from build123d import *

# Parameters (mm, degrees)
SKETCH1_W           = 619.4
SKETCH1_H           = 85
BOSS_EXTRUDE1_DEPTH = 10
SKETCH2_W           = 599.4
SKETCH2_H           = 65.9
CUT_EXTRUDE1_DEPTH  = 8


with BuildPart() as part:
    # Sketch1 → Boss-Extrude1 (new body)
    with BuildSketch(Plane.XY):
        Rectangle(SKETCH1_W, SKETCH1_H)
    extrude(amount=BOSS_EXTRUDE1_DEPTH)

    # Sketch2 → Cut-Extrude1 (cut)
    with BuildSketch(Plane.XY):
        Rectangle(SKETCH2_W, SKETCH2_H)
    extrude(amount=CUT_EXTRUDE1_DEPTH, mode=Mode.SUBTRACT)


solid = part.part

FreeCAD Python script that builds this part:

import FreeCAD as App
import Part
import Sketcher

V = App.Vector
Q = App.Units.Quantity

doc = App.newDocument("Part")
params = doc.addObject("Spreadsheet::Sheet", "Params")
for row, (alias, value) in enumerate([
    ("sketch1_height", "85 mm"),
    ("sketch1_width", "619.4 mm"),
    ("pad1_length", "10 mm"),
    ("sketch2_width", "599.4 mm"),
    ("sketch2_height", "65.9 mm"),
    ("pocket1_length", "8 mm"),
], start=1):
    params.set(f"A{row}", alias)
    params.set(f"B{row}", "=" + value)
    params.setAlias(f"B{row}", alias)

body = doc.addObject("PartDesign::Body", "Body")

# Sketch on XY plane
sketch1 = body.newObject("Sketcher::SketchObject", "Sketch")
sketch1.AttachmentSupport = (doc.getObject("XY_Plane"), [""])
sketch1.MapMode = "FlatFace"
sketch1.addGeometry(Part.LineSegment(V(-310, 42, 0), V(-310, -42, 0)), False)
sketch1.addGeometry(Part.LineSegment(V(-310, -42, 0), V(310, -42, 0)), False)
sketch1.addGeometry(Part.LineSegment(V(310, -42, 0), V(310, 42, 0)), False)
sketch1.addGeometry(Part.LineSegment(V(310, 42, 0), V(-310, 42, 0)), False)
sketch1.addConstraint(Sketcher.Constraint("Coincident", 0, 2, 1, 1))
sketch1.addConstraint(Sketcher.Constraint("Coincident", 1, 2, 2, 1))
sketch1.addConstraint(Sketcher.Constraint("Coincident", 2, 2, 3, 1))
sketch1.addConstraint(Sketcher.Constraint("Coincident", 3, 2, 0, 1))
sketch1.addConstraint(Sketcher.Constraint("Vertical", 0))
sketch1.addConstraint(Sketcher.Constraint("Horizontal", 1))
sketch1.addConstraint(Sketcher.Constraint("Vertical", 2))
sketch1.addConstraint(Sketcher.Constraint("Horizontal", 3))
sketch1.addConstraint(Sketcher.Constraint("Symmetric", 0, 2, 2, 2, -1, 1))
sketch1.addConstraint(Sketcher.Constraint("DistanceY", 0, 2, 0, 1, Q("85 mm")))
sketch1.addConstraint(Sketcher.Constraint("DistanceX", 1, 1, 1, 2, Q("619.4 mm")))
sketch1.setExpression("Constraints[9]", "Params.sketch1_height")
sketch1.setExpression("Constraints[10]", "Params.sketch1_width")
pad1 = body.newObject("PartDesign::Pad", "Pad")
pad1.Profile = sketch1
pad1.setExpression("Length", "Params.pad1_length")

# Sketch on XY plane
sketch2 = body.newObject("Sketcher::SketchObject", "Sketch001")
sketch2.AttachmentSupport = (doc.getObject("XY_Plane"), [""])
sketch2.MapMode = "FlatFace"
sketch2.addGeometry(Part.LineSegment(V(-300, 33, 0), V(-300, -33, 0)), False)
sketch2.addGeometry(Part.LineSegment(V(-300, -33, 0), V(300, -33, 0)), False)
sketch2.addGeometry(Part.LineSegment(V(300, -33, 0), V(300, 33, 0)), False)
sketch2.addGeometry(Part.LineSegment(V(300, 33, 0), V(-300, 33, 0)), False)
sketch2.addConstraint(Sketcher.Constraint("Coincident", 0, 2, 1, 1))
sketch2.addConstraint(Sketcher.Constraint("Coincident", 1, 2, 2, 1))
sketch2.addConstraint(Sketcher.Constraint("Coincident", 2, 2, 3, 1))
sketch2.addConstraint(Sketcher.Constraint("Coincident", 3, 2, 0, 1))
sketch2.addConstraint(Sketcher.Constraint("Vertical", 0))
sketch2.addConstraint(Sketcher.Constraint("Horizontal", 1))
sketch2.addConstraint(Sketcher.Constraint("Vertical", 2))
sketch2.addConstraint(Sketcher.Constraint("Horizontal", 3))
sketch2.addConstraint(Sketcher.Constraint("Symmetric", 0, 2, 2, 2, -1, 1))
sketch2.addConstraint(Sketcher.Constraint("DistanceX", 1, 1, 1, 2, Q("599.4 mm")))
sketch2.addConstraint(Sketcher.Constraint("DistanceY", 0, 2, 0, 1, Q("65.9 mm")))
sketch2.setExpression("Constraints[9]", "Params.sketch2_width")
sketch2.setExpression("Constraints[10]", "Params.sketch2_height")
pocket1 = body.newObject("PartDesign::Pocket", "Pocket")
pocket1.Profile = sketch2
pocket1.setExpression("Length", "Params.pocket1_length")
pocket1.Reversed = True

doc.recompute()
